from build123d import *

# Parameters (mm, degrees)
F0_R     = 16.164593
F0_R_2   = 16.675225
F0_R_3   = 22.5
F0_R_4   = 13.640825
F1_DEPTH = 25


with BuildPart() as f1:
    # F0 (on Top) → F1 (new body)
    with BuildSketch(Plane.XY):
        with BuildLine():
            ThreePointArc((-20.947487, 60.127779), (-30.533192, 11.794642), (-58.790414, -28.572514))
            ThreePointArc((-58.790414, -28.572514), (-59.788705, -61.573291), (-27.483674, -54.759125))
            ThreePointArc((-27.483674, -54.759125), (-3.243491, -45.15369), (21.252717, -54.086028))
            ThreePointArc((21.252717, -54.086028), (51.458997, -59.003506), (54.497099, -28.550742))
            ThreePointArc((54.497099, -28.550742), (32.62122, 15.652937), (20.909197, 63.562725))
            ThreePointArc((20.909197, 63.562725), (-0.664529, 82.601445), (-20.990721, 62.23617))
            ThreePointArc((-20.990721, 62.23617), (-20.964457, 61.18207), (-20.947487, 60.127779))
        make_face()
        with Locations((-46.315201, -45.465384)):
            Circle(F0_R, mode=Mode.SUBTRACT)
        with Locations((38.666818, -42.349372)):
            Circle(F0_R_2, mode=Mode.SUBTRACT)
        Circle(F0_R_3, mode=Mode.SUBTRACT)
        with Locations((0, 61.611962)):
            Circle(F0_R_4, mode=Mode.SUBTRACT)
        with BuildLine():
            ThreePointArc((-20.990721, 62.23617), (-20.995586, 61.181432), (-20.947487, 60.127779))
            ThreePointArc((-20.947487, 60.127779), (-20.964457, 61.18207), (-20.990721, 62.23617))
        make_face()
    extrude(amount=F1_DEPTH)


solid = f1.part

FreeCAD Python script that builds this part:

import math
import FreeCAD as App
import Part
import Sketcher

V = App.Vector

doc = App.newDocument("Part")
body = doc.addObject("PartDesign::Body", "Body")

# Sketch on XY plane
sketch1 = doc.addObject("Sketcher::SketchObject", "Sketch")
body.addObject(sketch1)
sketch1.AttachmentSupport = (doc.XY_Plane, [""])
sketch1.MapMode = "FlatFace"
sketch1.addGeometry(Part.ArcOfCircle(Part.Circle(V(-140.5, 58.7, 0), V(0, 0, 1), 119.6), math.radians(-47), math.radians(1)), False)
sketch1.addGeometry(Part.ArcOfCircle(Part.Circle(V(-46.3, -45.5, 0), V(0, 0, 1), 21), math.radians(126), math.radians(334)), False)
sketch1.addGeometry(Part.ArcOfCircle(Part.Circle(V(-2.7, -81.8, 0), V(0, 0, 1), 36.7), math.radians(49), math.radians(132)), False)
sketch1.addGeometry(Part.ArcOfCircle(Part.Circle(V(38.7, -42.3, 0), V(0, 0, 1), 21), math.radians(-146), math.radians(41)), False)
sketch1.addGeometry(Part.ArcOfCircle(Part.Circle(V(243.9, 92.7, 0), V(0, 0, 1), 224.8), math.radians(-173), math.radians(-147)), False)
sketch1.addGeometry(Part.ArcOfCircle(Part.Circle(V(0, 61.6, 0), V(0, 0, 1), 21), math.radians(5), math.radians(178)), False)
sketch1.addGeometry(Part.ArcOfCircle(Part.Circle(V(0, 61.6, 0), V(0, 0, 1), 21), math.radians(178.3), math.radians(184.05)), False)
sketch1.addGeometry(Part.Circle(V(-46.3, -45.5, 0), V(0, 0, 1), 16.2), False)
sketch1.addGeometry(Part.Circle(V(38.7, -42.3, 0), V(0, 0, 1), 16.7), False)
sketch1.addGeometry(Part.Circle(V(0, 0, 0), V(0, 0, 1), 22.5), False)
sketch1.addGeometry(Part.Circle(V(0, 61.6, 0), V(0, 0, 1), 13.6), False)
sketch1.addConstraint(Sketcher.Constraint("Coincident", 0, 1, 1, 1))
sketch1.addConstraint(Sketcher.Constraint("Coincident", 1, 2, 2, 2))
sketch1.addConstraint(Sketcher.Constraint("Coincident", 2, 1, 3, 1))
sketch1.addConstraint(Sketcher.Constraint("Coincident", 3, 2, 4, 2))
sketch1.addConstraint(Sketcher.Constraint("Coincident", 4, 1, 5, 1))
sketch1.addConstraint(Sketcher.Constraint("Tangent", 5, 2, 6, 1))
sketch1.addConstraint(Sketcher.Constraint("Coincident", 6, 2, 0, 2))
sketch1.addConstraint(Sketcher.Constraint("Coincident", 9, 3, -1, 1))
sketch1.addConstraint(Sketcher.Constraint("Coincident", 7, 3, 1, 3))
sketch1.addConstraint(Sketcher.Constraint("Coincident", 8, 3, 3, 3))
sketch1.addConstraint(Sketcher.Constraint("Coincident", 10, 3, 5, 3))
sketch1.addConstraint(Sketcher.Constraint("Equal", 1, 3))
sketch1.addConstraint(Sketcher.Constraint("Equal", 3, 5))
sketch1.addConstraint(Sketcher.Constraint("PointOnObject", 5, 3, -2))
sketch1.addConstraint(Sketcher.Constraint("Diameter", 9, 45.0))
sketch1.addConstraint(Sketcher.Constraint("Radius", 1, 21.0))
sketch1.addConstraint(Sketcher.Constraint("Diameter", 8, 33.35045))
sketch1.addConstraint(Sketcher.Constraint("Diameter", 10, 27.28165))
sketch1.addConstraint(Sketcher.Constraint("Radius", 2, 36.670318))
sketch1.addConstraint(Sketcher.Constraint("Radius", 6, 21.000371))
sketch1.addConstraint(Sketcher.Constraint("Diameter", 7, 32.329186))
sketch1.addConstraint(Sketcher.Constraint("Radius", 0, 119.605924))
sketch1.addConstraint(Sketcher.Constraint("Radius", 4, 224.848812))
sketch1.addConstraint(Sketcher.Constraint("DistanceX", 1, 3, -1, 1, 46.3152))
sketch1.addConstraint(Sketcher.Constraint("DistanceX", -1, 1, 3, 2, 54.497099))
sketch1.addConstraint(Sketcher.Constraint("DistanceX", 2, 1, 3, 3, 17.414101))
sketch1.addConstraint(Sketcher.Constraint("DistanceY", 2, 3, -1, 1, 81.820511))
sketch1.addConstraint(Sketcher.Constraint("DistanceX", -1, 1, 3, 3, 38.666818))
sketch1.addConstraint(Sketcher.Constraint("DistanceX", -1, 1, 4, 3, 243.864741))
sketch1.addConstraint(Sketcher.Constraint("DistanceY", -1, 1, 5, 3, 61.611962))
sketch1.addConstraint(Sketcher.Constraint("DistanceY", 3, 2, -1, 1, 28.550742))
sketch1.addConstraint(Sketcher.Constraint("DistanceX", 5, 2, -1, 1, 20.990721))
sketch1.addConstraint(Sketcher.Constraint("DistanceY", -1, 1, 6, 2, 60.127779))
sketch1.addConstraint(Sketcher.Constraint("DistanceY", 1, 3, 0, 3, 104.195361))
sketch1.addConstraint(Sketcher.Constraint("DistanceY", 2, 3, 0, 3, 140.550489))
pad1 = doc.addObject("PartDesign::Pad", "Pad")
body.addObject(pad1)
pad1.Profile = sketch1
pad1.Length = 25

doc.recompute()
